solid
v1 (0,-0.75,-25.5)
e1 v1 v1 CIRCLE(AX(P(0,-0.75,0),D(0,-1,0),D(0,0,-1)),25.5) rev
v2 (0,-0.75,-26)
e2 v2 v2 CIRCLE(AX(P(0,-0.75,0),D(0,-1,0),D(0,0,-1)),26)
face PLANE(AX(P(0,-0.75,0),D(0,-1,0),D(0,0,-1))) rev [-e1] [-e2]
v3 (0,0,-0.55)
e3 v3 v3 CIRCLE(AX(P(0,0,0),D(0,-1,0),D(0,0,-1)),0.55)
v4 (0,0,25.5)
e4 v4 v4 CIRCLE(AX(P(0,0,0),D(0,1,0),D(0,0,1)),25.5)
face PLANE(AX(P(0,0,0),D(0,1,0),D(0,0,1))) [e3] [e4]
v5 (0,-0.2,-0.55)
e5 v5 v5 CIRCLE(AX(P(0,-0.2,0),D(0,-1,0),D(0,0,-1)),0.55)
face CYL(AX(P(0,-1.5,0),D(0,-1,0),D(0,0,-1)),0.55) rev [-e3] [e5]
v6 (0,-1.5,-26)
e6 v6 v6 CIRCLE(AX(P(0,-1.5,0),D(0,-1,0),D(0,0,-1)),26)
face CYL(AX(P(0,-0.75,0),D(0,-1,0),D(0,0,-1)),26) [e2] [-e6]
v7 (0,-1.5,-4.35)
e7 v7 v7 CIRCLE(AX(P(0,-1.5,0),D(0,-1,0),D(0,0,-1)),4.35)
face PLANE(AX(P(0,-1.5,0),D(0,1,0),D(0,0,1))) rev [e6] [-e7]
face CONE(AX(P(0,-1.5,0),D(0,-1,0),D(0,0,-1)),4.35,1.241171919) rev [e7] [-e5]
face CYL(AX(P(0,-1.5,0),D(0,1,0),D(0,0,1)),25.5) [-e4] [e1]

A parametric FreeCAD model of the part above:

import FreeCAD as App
import Part
import Sketcher

doc = App.newDocument("Part")
body = doc.addObject("PartDesign::Body", "Body")

# Sketch on XZ plane
sketch1 = doc.addObject("Sketcher::SketchObject", "Sketch")
body.addObject(sketch1)
sketch1.AttachmentSupport = (doc.XZ_Plane, [""])
sketch1.MapMode = "FlatFace"
sketch1.addGeometry(Part.Circle(App.Vector(0, 0, 0), App.Vector(0, 0, 1), 26), False)
sketch1.addConstraint([
    Sketcher.Constraint("Coincident", 0, 3, -1, 1),
    Sketcher.Constraint("Diameter", 0, 51.0),
])
pad1 = doc.addObject("PartDesign::Pad", "Pad")
body.addObject(pad1)
pad1.Profile = sketch1
pad1.Length = 1.5

# Sketch on XZ plane
sketch2 = doc.addObject("Sketcher::SketchObject", "Sketch001")
body.addObject(sketch2)
sketch2.AttachmentSupport = (doc.XZ_Plane, [""])
sketch2.MapMode = "FlatFace"
sketch2.AttachmentOffset = App.Placement(App.Vector(0, 0, 1.5), App.Rotation())
sketch2.addGeometry(Part.Circle(App.Vector(0, 0, 0), App.Vector(0, 0, 1), 26), False)
sketch2.addConstraint([
    Sketcher.Constraint("Coincident", 0, 3, -1, 1),
    Sketcher.Constraint("Diameter", 0, 52.0),
])
pad2 = doc.addObject("PartDesign::Pad", "Pad001")
body.addObject(pad2)
pad2.Profile = sketch2
pad2.Length = 0.75
pad2.Reversed = True

# Sketch on XZ plane
sketch3 = doc.addObject("Sketcher::SketchObject", "Sketch002")
body.addObject(sketch3)
sketch3.AttachmentSupport = (doc.XZ_Plane, [""])
sketch3.MapMode = "FlatFace"
sketch3.AttachmentOffset = App.Placement(App.Vector(0, 0, 0.75), App.Rotation())
sketch3.addGeometry(Part.Circle(App.Vector(0, 0, 0), App.Vector(0, 0, 1), 0.6), False)
sketch3.addConstraint([
    Sketcher.Constraint("Coincident", 0, 3, -1, 1),
    Sketcher.Constraint("Diameter", 0, 1.2),
])
pocket1 = doc.addObject("PartDesign::Pocket", "Pocket")
body.addObject(pocket1)
pocket1.Profile = sketch3
pocket1.Type = "ThroughAll"
pocket1.Reversed = True

# Sketch on XY plane
sketch4 = doc.addObject("Sketcher::SketchObject", "Sketch003")
body.addObject(sketch4)
sketch4.AttachmentSupport = (doc.XY_Plane, [""])
sketch4.MapMode = "FlatFace"
sketch4.addGeometry([
    Part.LineSegment(App.Vector(-4.35, -1.5, 0), App.Vector(0, -1.5, 0)),  # 0
    Part.LineSegment(App.Vector(0, -1.5, 0), App.Vector(0, 0, 0)),  # 1
    Part.LineSegment(App.Vector(0, 0, 0), App.Vector(-0.55, 0, 0)),  # 2
    Part.LineSegment(App.Vector(-0.55, 0, 0), App.Vector(-0.55, -0.2, 0)),  # 3
    Part.LineSegment(App.Vector(-0.55, -0.2, 0), App.Vector(-4.35, -1.5, 0)),  # 4
], False)
sketch4.addConstraint([
    Sketcher.Constraint("Coincident", 0, 2, 1, 1),
    Sketcher.Constraint("Coincident", 1, 2, 2, 1),
    Sketcher.Constraint("Coincident", 2, 2, 3, 1),
    Sketcher.Constraint("Coincident", 3, 2, 4, 1),
    Sketcher.Constraint("Coincident", 4, 2, 0, 1),
    Sketcher.Constraint("Horizontal", 0),
    Sketcher.Constraint("Vertical", 1),
    Sketcher.Constraint("Horizontal", 2),
    Sketcher.Constraint("Vertical", 3),
    Sketcher.Constraint("Coincident", 1, 2, -1, 1),
    Sketcher.Constraint("DistanceY", 1, 1, 1, 2, 1.5),
    Sketcher.Constraint("DistanceY", 3, 2, 3, 1, 0.2),
    Sketcher.Constraint("DistanceX", 0, 1, 0, 2, 4.35),
    Sketcher.Constraint("DistanceX", 2, 2, 2, 1, 0.55),
])
groove = doc.addObject("PartDesign::Groove", "Groove")
body.addObject(groove)
groove.Profile = sketch4
groove.ReferenceAxis = (sketch4, ["V_Axis"])
groove.Angle = 360

doc.recompute()
